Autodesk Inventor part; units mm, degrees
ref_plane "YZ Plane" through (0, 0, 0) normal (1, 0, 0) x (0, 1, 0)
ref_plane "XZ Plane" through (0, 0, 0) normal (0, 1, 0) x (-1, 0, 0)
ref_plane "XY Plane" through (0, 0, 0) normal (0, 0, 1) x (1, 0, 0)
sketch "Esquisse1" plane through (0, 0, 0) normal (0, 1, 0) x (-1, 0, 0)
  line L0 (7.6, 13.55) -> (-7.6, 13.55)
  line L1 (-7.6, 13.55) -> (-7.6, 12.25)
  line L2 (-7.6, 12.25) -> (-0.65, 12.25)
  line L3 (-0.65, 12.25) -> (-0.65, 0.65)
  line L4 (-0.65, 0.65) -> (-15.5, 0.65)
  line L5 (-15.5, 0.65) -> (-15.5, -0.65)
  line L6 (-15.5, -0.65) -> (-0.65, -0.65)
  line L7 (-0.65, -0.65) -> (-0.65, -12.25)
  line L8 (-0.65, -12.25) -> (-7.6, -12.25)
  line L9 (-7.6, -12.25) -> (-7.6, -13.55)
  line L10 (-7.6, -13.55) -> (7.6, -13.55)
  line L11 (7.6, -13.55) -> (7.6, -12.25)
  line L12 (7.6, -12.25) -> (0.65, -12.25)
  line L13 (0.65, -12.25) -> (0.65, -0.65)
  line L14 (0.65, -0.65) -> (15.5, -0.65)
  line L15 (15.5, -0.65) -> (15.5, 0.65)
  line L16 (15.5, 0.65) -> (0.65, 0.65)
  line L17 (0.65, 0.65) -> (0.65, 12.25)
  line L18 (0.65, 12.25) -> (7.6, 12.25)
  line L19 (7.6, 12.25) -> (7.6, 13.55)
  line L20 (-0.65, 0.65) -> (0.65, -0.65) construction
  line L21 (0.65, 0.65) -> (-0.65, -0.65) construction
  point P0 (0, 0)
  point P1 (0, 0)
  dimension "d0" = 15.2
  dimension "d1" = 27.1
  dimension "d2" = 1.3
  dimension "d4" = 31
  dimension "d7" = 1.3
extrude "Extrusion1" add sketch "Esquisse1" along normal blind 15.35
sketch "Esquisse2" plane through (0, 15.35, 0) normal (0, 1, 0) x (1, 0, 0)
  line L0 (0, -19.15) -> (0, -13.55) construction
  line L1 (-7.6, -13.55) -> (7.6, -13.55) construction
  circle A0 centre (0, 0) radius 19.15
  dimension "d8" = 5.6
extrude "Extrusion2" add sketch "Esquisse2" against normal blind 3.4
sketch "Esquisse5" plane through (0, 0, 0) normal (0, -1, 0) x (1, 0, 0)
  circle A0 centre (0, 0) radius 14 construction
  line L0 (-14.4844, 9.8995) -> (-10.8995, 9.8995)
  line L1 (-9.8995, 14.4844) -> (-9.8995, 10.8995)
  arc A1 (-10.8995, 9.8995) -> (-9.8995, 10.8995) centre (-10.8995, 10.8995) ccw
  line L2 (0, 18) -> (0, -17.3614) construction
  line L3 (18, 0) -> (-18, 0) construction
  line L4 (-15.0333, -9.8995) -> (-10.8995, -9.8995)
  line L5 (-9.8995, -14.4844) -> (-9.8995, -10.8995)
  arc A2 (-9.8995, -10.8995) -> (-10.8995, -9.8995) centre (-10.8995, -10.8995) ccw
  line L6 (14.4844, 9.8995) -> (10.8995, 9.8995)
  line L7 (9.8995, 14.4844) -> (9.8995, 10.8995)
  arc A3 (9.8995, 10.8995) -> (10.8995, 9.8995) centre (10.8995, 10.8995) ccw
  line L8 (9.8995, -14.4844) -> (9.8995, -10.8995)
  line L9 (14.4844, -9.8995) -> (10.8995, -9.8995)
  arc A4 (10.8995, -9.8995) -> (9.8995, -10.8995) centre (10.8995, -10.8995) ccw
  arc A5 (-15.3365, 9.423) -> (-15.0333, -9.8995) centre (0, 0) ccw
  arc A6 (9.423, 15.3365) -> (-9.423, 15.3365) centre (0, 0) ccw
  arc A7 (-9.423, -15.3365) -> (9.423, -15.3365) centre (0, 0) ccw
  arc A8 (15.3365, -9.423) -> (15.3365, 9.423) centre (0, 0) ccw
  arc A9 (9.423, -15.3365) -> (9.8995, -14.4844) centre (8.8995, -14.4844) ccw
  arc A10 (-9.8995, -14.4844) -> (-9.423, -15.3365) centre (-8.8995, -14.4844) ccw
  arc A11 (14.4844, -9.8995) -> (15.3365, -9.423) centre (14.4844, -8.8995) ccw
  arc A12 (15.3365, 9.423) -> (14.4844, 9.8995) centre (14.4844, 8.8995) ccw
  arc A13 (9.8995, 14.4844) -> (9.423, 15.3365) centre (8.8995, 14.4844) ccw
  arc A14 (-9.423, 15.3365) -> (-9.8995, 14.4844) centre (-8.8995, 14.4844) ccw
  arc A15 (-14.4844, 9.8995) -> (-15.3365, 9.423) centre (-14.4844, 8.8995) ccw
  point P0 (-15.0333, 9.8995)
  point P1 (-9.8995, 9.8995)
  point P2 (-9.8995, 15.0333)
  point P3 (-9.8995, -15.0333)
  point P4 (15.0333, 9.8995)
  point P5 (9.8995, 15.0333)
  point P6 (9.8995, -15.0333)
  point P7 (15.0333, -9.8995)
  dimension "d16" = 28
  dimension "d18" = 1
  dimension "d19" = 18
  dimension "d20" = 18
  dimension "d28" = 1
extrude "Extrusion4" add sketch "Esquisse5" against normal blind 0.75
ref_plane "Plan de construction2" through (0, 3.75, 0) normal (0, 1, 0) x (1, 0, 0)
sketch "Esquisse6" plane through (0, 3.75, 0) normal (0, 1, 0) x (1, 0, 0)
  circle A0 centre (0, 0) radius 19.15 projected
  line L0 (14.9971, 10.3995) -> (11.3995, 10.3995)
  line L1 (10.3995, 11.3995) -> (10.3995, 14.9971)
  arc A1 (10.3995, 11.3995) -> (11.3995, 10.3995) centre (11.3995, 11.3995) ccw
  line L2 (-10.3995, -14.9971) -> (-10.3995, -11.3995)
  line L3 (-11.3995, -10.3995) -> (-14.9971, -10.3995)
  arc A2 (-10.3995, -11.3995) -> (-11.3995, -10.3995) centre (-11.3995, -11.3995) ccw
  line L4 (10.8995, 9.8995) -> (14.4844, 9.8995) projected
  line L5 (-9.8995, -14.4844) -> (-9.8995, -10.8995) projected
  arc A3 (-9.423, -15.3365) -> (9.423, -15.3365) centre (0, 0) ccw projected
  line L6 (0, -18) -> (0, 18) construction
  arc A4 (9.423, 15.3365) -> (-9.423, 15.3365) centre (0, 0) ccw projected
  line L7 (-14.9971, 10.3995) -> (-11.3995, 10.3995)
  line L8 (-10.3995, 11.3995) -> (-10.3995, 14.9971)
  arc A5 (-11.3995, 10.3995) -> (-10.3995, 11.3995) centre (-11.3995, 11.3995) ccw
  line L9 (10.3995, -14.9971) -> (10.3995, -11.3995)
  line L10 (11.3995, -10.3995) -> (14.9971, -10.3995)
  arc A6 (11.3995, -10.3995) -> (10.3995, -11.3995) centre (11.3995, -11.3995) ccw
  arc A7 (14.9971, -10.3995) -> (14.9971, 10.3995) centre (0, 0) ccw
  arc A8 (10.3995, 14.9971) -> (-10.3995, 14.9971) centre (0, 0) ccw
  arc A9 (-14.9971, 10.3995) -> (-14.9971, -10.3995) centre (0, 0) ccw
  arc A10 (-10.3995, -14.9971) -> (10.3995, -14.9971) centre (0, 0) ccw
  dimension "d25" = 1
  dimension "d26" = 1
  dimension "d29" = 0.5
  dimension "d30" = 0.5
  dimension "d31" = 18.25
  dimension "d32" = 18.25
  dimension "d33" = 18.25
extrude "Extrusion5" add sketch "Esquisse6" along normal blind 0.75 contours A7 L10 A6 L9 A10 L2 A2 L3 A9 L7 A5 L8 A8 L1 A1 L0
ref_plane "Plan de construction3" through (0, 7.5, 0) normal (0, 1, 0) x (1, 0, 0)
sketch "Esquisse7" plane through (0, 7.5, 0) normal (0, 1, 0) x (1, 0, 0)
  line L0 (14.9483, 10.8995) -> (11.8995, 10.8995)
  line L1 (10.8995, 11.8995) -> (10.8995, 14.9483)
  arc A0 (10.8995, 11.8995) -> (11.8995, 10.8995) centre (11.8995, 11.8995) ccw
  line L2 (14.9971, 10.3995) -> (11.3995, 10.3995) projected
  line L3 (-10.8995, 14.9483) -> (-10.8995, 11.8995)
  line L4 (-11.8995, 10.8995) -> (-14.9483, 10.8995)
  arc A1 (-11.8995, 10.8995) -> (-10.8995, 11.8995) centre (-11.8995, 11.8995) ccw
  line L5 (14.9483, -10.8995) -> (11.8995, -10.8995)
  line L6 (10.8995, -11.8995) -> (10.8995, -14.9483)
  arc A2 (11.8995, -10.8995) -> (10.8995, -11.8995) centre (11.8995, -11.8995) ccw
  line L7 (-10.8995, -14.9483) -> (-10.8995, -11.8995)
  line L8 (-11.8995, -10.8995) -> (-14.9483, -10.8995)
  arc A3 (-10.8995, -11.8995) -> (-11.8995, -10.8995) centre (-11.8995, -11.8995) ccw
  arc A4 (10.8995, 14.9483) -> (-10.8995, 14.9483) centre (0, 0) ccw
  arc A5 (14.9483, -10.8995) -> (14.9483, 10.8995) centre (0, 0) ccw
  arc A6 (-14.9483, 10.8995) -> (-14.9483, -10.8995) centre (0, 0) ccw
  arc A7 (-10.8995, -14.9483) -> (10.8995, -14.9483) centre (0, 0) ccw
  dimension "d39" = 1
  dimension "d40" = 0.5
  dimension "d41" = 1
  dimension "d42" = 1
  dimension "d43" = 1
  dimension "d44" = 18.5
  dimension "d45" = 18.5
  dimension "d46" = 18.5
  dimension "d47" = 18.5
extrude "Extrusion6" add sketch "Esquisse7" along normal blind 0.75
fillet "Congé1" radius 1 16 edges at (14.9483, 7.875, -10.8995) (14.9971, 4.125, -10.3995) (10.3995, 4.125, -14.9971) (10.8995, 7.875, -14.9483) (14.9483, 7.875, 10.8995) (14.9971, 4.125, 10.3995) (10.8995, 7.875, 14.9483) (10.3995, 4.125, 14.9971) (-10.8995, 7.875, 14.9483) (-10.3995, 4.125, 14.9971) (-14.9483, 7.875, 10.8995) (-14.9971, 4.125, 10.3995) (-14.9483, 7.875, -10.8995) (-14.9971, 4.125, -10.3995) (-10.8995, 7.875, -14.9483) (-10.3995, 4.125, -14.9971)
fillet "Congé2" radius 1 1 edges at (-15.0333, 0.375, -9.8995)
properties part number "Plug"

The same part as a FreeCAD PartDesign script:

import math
import FreeCAD as App
import Part
import Sketcher
Q = App.Units.Quantity


def edges_at(feature, points):
    """Names of the edges that pass closest to the given points."""
    edges = feature.Shape.Edges
    near = lambda p: min(range(len(edges)), key=lambda i: edges[i].distToShape(Part.Vertex(*p))[0])
    return sorted({f"Edge{near(p) + 1}" for p in points})


def add_polygon(sketch, points):
    """Adds a closed chain of lines whose ends are joined by coincident constraints."""
    first, n = sketch.GeometryCount, len(points)
    for a, b in zip(points, points[1:] + points[:1]):
        sketch.addGeometry(Part.LineSegment(App.Vector(*a, 0), App.Vector(*b, 0)), False)
    for i in range(n):
        sketch.addConstraint(Sketcher.Constraint("Coincident", first + i, 2, first + (i + 1) % n, 1))

doc = App.newDocument("Part")
body = doc.addObject("PartDesign::Body", "Body")

# Sketch on XZ plane
sketch1 = body.newObject("Sketcher::SketchObject", "Sketch")
sketch1.AttachmentSupport = (doc.getObject("XZ_Plane"), [""])
sketch1.MapMode = "FlatFace"
add_polygon(sketch1, [(-7.6, 12.2), (-7.6, 13.6), (7.6, 13.6), (7.6, 12.2), (0.7, 12.2), (0.7, 0.7), (15.5, 0.7), (15.5, -0.7), (0.7, -0.7), (0.7, -12.2), (7.6, -12.2), (7.6, -13.6), (-7.6, -13.6), (-7.6, -12.2), (-0.7, -12.2), (-0.7, -0.7), (-15.5, -0.7), (-15.5, 0.7), (-0.7, 0.7), (-0.7, 12.2)])  # lines 0-19
sketch1.addConstraint([
    Sketcher.Constraint("Vertical", 0),
    Sketcher.Constraint("Horizontal", 1),
    Sketcher.Constraint("Vertical", 2),
    Sketcher.Constraint("Horizontal", 3),
    Sketcher.Constraint("Vertical", 4),
    Sketcher.Constraint("Horizontal", 5),
    Sketcher.Constraint("Vertical", 6),
    Sketcher.Constraint("Horizontal", 7),
    Sketcher.Constraint("Vertical", 8),
    Sketcher.Constraint("Horizontal", 9),
    Sketcher.Constraint("Vertical", 10),
    Sketcher.Constraint("Horizontal", 11),
    Sketcher.Constraint("Vertical", 12),
    Sketcher.Constraint("Horizontal", 13),
    Sketcher.Constraint("Vertical", 14),
    Sketcher.Constraint("Horizontal", 15),
    Sketcher.Constraint("Vertical", 16),
    Sketcher.Constraint("Horizontal", 17),
    Sketcher.Constraint("Vertical", 18),
    Sketcher.Constraint("Horizontal", 19),
    Sketcher.Constraint("Symmetric", 0, 2, 10, 2, -1, 1),
    Sketcher.Constraint("Symmetric", 2, 2, 12, 2, -1, 1),
    Sketcher.Constraint("Symmetric", 4, 2, 14, 2, -1, 1),
    Sketcher.Constraint("Symmetric", 6, 2, 16, 2, -1, 1),
    Sketcher.Constraint("Symmetric", 8, 2, 18, 2, -1, 1),
    Sketcher.Constraint("Symmetric", 9, 2, 12, 2, -2),
    Sketcher.Constraint("Symmetric", 7, 2, 14, 2, -2),
    Sketcher.Constraint("Equal", 2, 6),
    Sketcher.Constraint("DistanceX", 1, 1, 1, 2, Q("15.2 mm")),
    Sketcher.Constraint("DistanceY", 0, 1, 0, 2, Q("1.3 mm")),
    Sketcher.Constraint("DistanceX", 13, 2, 8, 2, Q("1.3 mm")),
    Sketcher.Constraint("DistanceY", 4, 2, 4, 1, Q("11.6 mm")),
    Sketcher.Constraint("DistanceX", 5, 1, 5, 2, Q("14.85 mm")),
])
pad1 = body.newObject("PartDesign::Pad", "Pad")
pad1.Profile = sketch1
pad1.Length = 15.35
pad1.Reversed = True

# Sketch on XZ plane
sketch2 = body.newObject("Sketcher::SketchObject", "Sketch001")
sketch2.AttachmentSupport = (doc.getObject("XZ_Plane"), [""])
sketch2.MapMode = "FlatFace"
sketch2.AttachmentOffset = App.Placement(App.Vector(0, 0, -15.35), App.Rotation())
sketch2.addGeometry(Part.Circle(App.Vector(0, 0, 0), App.Vector(0, 0, 1), 19), False)
sketch2.addConstraint([
    Sketcher.Constraint("Coincident", 0, 3, -1, 1),
    Sketcher.Constraint("Diameter", 0, Q("38.3 mm")),
])
pad2 = body.newObject("PartDesign::Pad", "Pad001")
pad2.Profile = sketch2
pad2.Length = 3.4

# Sketch on XZ plane
sketch3 = body.newObject("Sketcher::SketchObject", "Sketch002")
sketch3.AttachmentSupport = (doc.getObject("XZ_Plane"), [""])
sketch3.MapMode = "FlatFace"
sketch3.addGeometry([
    Part.LineSegment(App.Vector(-10.9, 9.9, 0), App.Vector(-14.5, 9.9, 0)),  # 0
    Part.ArcOfCircle(Part.Circle(App.Vector(-14.5, 8.9, 0), App.Vector(0, 0, 1), 1), math.radians(90), math.radians(148)),  # 1
    Part.ArcOfCircle(Part.Circle(App.Vector(0, 0, 0), App.Vector(0, 0, 1), 18), math.radians(148), math.radians(213)),  # 2
    Part.LineSegment(App.Vector(-15, -9.9, 0), App.Vector(-10.9, -9.9, 0)),  # 3
    Part.ArcOfCircle(Part.Circle(App.Vector(-10.9, -10.9, 0), App.Vector(0, 0, 1), 1), math.radians(0), math.radians(90)),  # 4
    Part.LineSegment(App.Vector(-9.9, -10.9, 0), App.Vector(-9.9, -14.5, 0)),  # 5
    Part.ArcOfCircle(Part.Circle(App.Vector(-8.9, -14.5, 0), App.Vector(0, 0, 1), 1), math.radians(180), math.radians(238)),  # 6
    Part.ArcOfCircle(Part.Circle(App.Vector(0, 0, 0), App.Vector(0, 0, 1), 18), math.radians(-122), math.radians(-58)),  # 7
    Part.ArcOfCircle(Part.Circle(App.Vector(8.9, -14.5, 0), App.Vector(0, 0, 1), 1), math.radians(-58), math.radians(0)),  # 8
    Part.LineSegment(App.Vector(9.9, -14.5, 0), App.Vector(9.9, -10.9, 0)),  # 9
    Part.ArcOfCircle(Part.Circle(App.Vector(10.9, -10.9, 0), App.Vector(0, 0, 1), 1), math.radians(90), math.radians(180)),  # 10
    Part.LineSegment(App.Vector(10.9, -9.9, 0), App.Vector(14.5, -9.9, 0)),  # 11
    Part.ArcOfCircle(Part.Circle(App.Vector(14.5, -8.9, 0), App.Vector(0, 0, 1), 1), math.radians(-90), math.radians(-32)),  # 12
    Part.ArcOfCircle(Part.Circle(App.Vector(0, 0, 0), App.Vector(0, 0, 1), 18), math.radians(-32), math.radians(32)),  # 13
    Part.ArcOfCircle(Part.Circle(App.Vector(14.5, 8.9, 0), App.Vector(0, 0, 1), 1), math.radians(32), math.radians(90)),  # 14
    Part.LineSegment(App.Vector(14.5, 9.9, 0), App.Vector(10.9, 9.9, 0)),  # 15
    Part.ArcOfCircle(Part.Circle(App.Vector(10.9, 10.9, 0), App.Vector(0, 0, 1), 1), math.radians(180), math.radians(270)),  # 16
    Part.LineSegment(App.Vector(9.9, 10.9, 0), App.Vector(9.9, 14.5, 0)),  # 17
    Part.ArcOfCircle(Part.Circle(App.Vector(8.9, 14.5, 0), App.Vector(0, 0, 1), 1), math.radians(0), math.radians(58)),  # 18
    Part.ArcOfCircle(Part.Circle(App.Vector(0, 0, 0), App.Vector(0, 0, 1), 18), math.radians(58), math.radians(122)),  # 19
    Part.ArcOfCircle(Part.Circle(App.Vector(-8.9, 14.5, 0), App.Vector(0, 0, 1), 1), math.radians(122), math.radians(180)),  # 20
    Part.LineSegment(App.Vector(-9.9, 14.5, 0), App.Vector(-9.9, 10.9, 0)),  # 21
    Part.ArcOfCircle(Part.Circle(App.Vector(-10.9, 10.9, 0), App.Vector(0, 0, 1), 1), math.radians(-90), math.radians(0)),  # 22
], False)
sketch3.addConstraint([
    Sketcher.Constraint("Tangent", 0, 2, 1, 1),
    Sketcher.Constraint("Tangent", 1, 2, 2, 1),
    Sketcher.Constraint("Coincident", 2, 2, 3, 1),
    Sketcher.Constraint("Tangent", 3, 2, 4, 2),
    Sketcher.Constraint("Tangent", 4, 1, 5, 1),
    Sketcher.Constraint("Tangent", 5, 2, 6, 1),
    Sketcher.Constraint("Tangent", 6, 2, 7, 1),
    Sketcher.Constraint("Tangent", 7, 2, 8, 1),
    Sketcher.Constraint("Tangent", 8, 2, 9, 1),
    Sketcher.Constraint("Tangent", 9, 2, 10, 2),
    Sketcher.Constraint("Tangent", 10, 1, 11, 1),
    Sketcher.Constraint("Tangent", 11, 2, 12, 1),
    Sketcher.Constraint("Tangent", 12, 2, 13, 1),
    Sketcher.Constraint("Tangent", 13, 2, 14, 1),
    Sketcher.Constraint("Tangent", 14, 2, 15, 1),
    Sketcher.Constraint("Tangent", 15, 2, 16, 2),
    Sketcher.Constraint("Tangent", 16, 1, 17, 1),
    Sketcher.Constraint("Tangent", 17, 2, 18, 1),
    Sketcher.Constraint("Tangent", 18, 2, 19, 1),
    Sketcher.Constraint("Tangent", 19, 2, 20, 1),
    Sketcher.Constraint("Tangent", 20, 2, 21, 1),
    Sketcher.Constraint("Tangent", 21, 2, 22, 2),
    Sketcher.Constraint("Tangent", 22, 1, 0, 1),
    Sketcher.Constraint("Horizontal", 0),
    Sketcher.Constraint("Horizontal", 3),
    Sketcher.Constraint("Vertical", 5),
    Sketcher.Constraint("Vertical", 9),
    Sketcher.Constraint("Horizontal", 11),
    Sketcher.Constraint("Horizontal", 15),
    Sketcher.Constraint("Vertical", 17),
    Sketcher.Constraint("Vertical", 21),
    Sketcher.Constraint("Coincident", 2, 3, -1, 1),
    Sketcher.Constraint("Coincident", 7, 3, -1, 1),
    Sketcher.Constraint("Coincident", 13, 3, -1, 1),
    Sketcher.Constraint("Coincident", 19, 3, -1, 1),
    Sketcher.Constraint("Equal", 1, 4),
    Sketcher.Constraint("Equal", 4, 6),
    Sketcher.Constraint("Equal", 2, 7),
    Sketcher.Constraint("Equal", 6, 8),
    Sketcher.Constraint("Equal", 8, 10),
    Sketcher.Constraint("Equal", 10, 12),
    Sketcher.Constraint("Equal", 7, 13),
    Sketcher.Constraint("Equal", 12, 14),
    Sketcher.Constraint("Equal", 14, 16),
    Sketcher.Constraint("Equal", 16, 18),
    Sketcher.Constraint("Equal", 13, 19),
    Sketcher.Constraint("Equal", 18, 20),
    Sketcher.Constraint("Equal", 20, 22),
    Sketcher.Constraint("Symmetric", 4, 3, 16, 3, -1, 1),
    Sketcher.Constraint("Symmetric", 10, 3, 22, 3, -1, 1),
    Sketcher.Constraint("Symmetric", 4, 3, 10, 3, -2),
    Sketcher.Constraint("Equal", 15, 5),
    Sketcher.Constraint("Radius", 1, Q("1 mm")),
    Sketcher.Constraint("Radius", 2, Q("18 mm")),
    Sketcher.Constraint("DistanceX", 0, 2, 0, 1, Q("3.585 mm")),
])
pad3 = body.newObject("PartDesign::Pad", "Pad002")
pad3.Profile = sketch3
pad3.Length = 0.75
pad3.Reversed = True

# Sketch on XZ plane
sketch4 = body.newObject("Sketcher::SketchObject", "Sketch003")
sketch4.AttachmentSupport = (doc.getObject("XZ_Plane"), [""])
sketch4.MapMode = "FlatFace"
sketch4.AttachmentOffset = App.Placement(App.Vector(0, 0, -3.75), App.Rotation())
sketch4.addGeometry([
    Part.ArcOfCircle(Part.Circle(App.Vector(0, 0, 0), App.Vector(0, 0, 1), 18.3), math.radians(-35), math.radians(35)),  # 0
    Part.LineSegment(App.Vector(15, -10.4, 0), App.Vector(11.4, -10.4, 0)),  # 1
    Part.ArcOfCircle(Part.Circle(App.Vector(11.4, -11.4, 0), App.Vector(0, 0, 1), 1), math.radians(90), math.radians(180)),  # 2
    Part.LineSegment(App.Vector(10.4, -11.4, 0), App.Vector(10.4, -15, 0)),  # 3
    Part.ArcOfCircle(Part.Circle(App.Vector(0, 0, 0), App.Vector(0, 0, 1), 18.3), math.radians(-125), math.radians(-55)),  # 4
    Part.LineSegment(App.Vector(-10.4, -15, 0), App.Vector(-10.4, -11.4, 0)),  # 5
    Part.ArcOfCircle(Part.Circle(App.Vector(-11.4, -11.4, 0), App.Vector(0, 0, 1), 1), math.radians(0), math.radians(90)),  # 6
    Part.LineSegment(App.Vector(-11.4, -10.4, 0), App.Vector(-15, -10.4, 0)),  # 7
    Part.ArcOfCircle(Part.Circle(App.Vector(0, 0, 0), App.Vector(0, 0, 1), 18.3), math.radians(145), math.radians(215)),  # 8
    Part.LineSegment(App.Vector(-15, 10.4, 0), App.Vector(-11.4, 10.4, 0)),  # 9
    Part.ArcOfCircle(Part.Circle(App.Vector(-11.4, 11.4, 0), App.Vector(0, 0, 1), 1), math.radians(-90), math.radians(0)),  # 10
    Part.LineSegment(App.Vector(-10.4, 11.4, 0), App.Vector(-10.4, 15, 0)),  # 11
    Part.ArcOfCircle(Part.Circle(App.Vector(0, 0, 0), App.Vector(0, 0, 1), 18.3), math.radians(55), math.radians(125)),  # 12
    Part.LineSegment(App.Vector(10.4, 15, 0), App.Vector(10.4, 11.4, 0)),  # 13
    Part.ArcOfCircle(Part.Circle(App.Vector(11.4, 11.4, 0), App.Vector(0, 0, 1), 1), math.radians(180), math.radians(270)),  # 14
    Part.LineSegment(App.Vector(11.4, 10.4, 0), App.Vector(15, 10.4, 0)),  # 15
], False)
sketch4.addConstraint([
    Sketcher.Constraint("Coincident", 0, 1, 1, 1),
    Sketcher.Constraint("Tangent", 1, 2, 2, 1),
    Sketcher.Constraint("Tangent", 2, 2, 3, 1),
    Sketcher.Constraint("Coincident", 3, 2, 4, 2),
    Sketcher.Constraint("Coincident", 4, 1, 5, 1),
    Sketcher.Constraint("Tangent", 5, 2, 6, 1),
    Sketcher.Constraint("Tangent", 6, 2, 7, 1),
    Sketcher.Constraint("Coincident", 7, 2, 8, 2),
    Sketcher.Constraint("Coincident", 8, 1, 9, 1),
    Sketcher.Constraint("Tangent", 9, 2, 10, 1),
    Sketcher.Constraint("Tangent", 10, 2, 11, 1),
    Sketcher.Constraint("Coincident", 11, 2, 12, 2),
    Sketcher.Constraint("Coincident", 12, 1, 13, 1),
    Sketcher.Constraint("Tangent", 13, 2, 14, 1),
    Sketcher.Constraint("Tangent", 14, 2, 15, 1),
    Sketcher.Constraint("Coincident", 15, 2, 0, 2),
    Sketcher.Constraint("Horizontal", 1),
    Sketcher.Constraint("Vertical", 3),
    Sketcher.Constraint("Vertical", 5),
    Sketcher.Constraint("Horizontal", 7),
    Sketcher.Constraint("Horizontal", 9),
    Sketcher.Constraint("Vertical", 11),
    Sketcher.Constraint("Vertical", 13),
    Sketcher.Constraint("Horizontal", 15),
    Sketcher.Constraint("Coincident", 0, 3, -1, 1),
    Sketcher.Constraint("Coincident", 4, 3, -1, 1),
    Sketcher.Constraint("Coincident", 8, 3, -1, 1),
    Sketcher.Constraint("Coincident", 12, 3, -1, 1),
    Sketcher.Constraint("Equal", 0, 4),
    Sketcher.Constraint("Equal", 2, 6),
    Sketcher.Constraint("Equal", 4, 8),
    Sketcher.Constraint("Equal", 6, 10),
    Sketcher.Constraint("Equal", 8, 12),
    Sketcher.Constraint("Equal", 10, 14),
    Sketcher.Constraint("Symmetric", 2, 3, 10, 3, -1, 1),
    Sketcher.Constraint("Symmetric", 6, 3, 14, 3, -1, 1),
    Sketcher.Constraint("Symmetric", 2, 3, 6, 3, -2),
    Sketcher.Constraint("Equal", 15, 3),
    Sketcher.Constraint("Radius", 2, Q("1 mm")),
    Sketcher.Constraint("Radius", 0, Q("18.25 mm")),
    Sketcher.Constraint("DistanceX", 1, 2, 1, 1, Q("3.5976 mm")),
])
pad4 = body.newObject("PartDesign::Pad", "Pad003")
pad4.Profile = sketch4
pad4.Length = 0.75
pad4.Reversed = True

# Sketch on XZ plane
sketch5 = body.newObject("Sketcher::SketchObject", "Sketch004")
sketch5.AttachmentSupport = (doc.getObject("XZ_Plane"), [""])
sketch5.MapMode = "FlatFace"
sketch5.AttachmentOffset = App.Placement(App.Vector(0, 0, -7.5), App.Rotation())
sketch5.addGeometry([
    Part.ArcOfCircle(Part.Circle(App.Vector(0, 0, 0), App.Vector(0, 0, 1), 18.5), math.radians(-36), math.radians(36)),  # 0
    Part.LineSegment(App.Vector(14.9, -10.9, 0), App.Vector(11.9, -10.9, 0)),  # 1
    Part.ArcOfCircle(Part.Circle(App.Vector(11.9, -11.9, 0), App.Vector(0, 0, 1), 1), math.radians(90), math.radians(180)),  # 2
    Part.LineSegment(App.Vector(10.9, -11.9, 0), App.Vector(10.9, -14.9, 0)),  # 3
    Part.ArcOfCircle(Part.Circle(App.Vector(0, 0, 0), App.Vector(0, 0, 1), 18.5), math.radians(-126), math.radians(-54)),  # 4
    Part.LineSegment(App.Vector(-10.9, -14.9, 0), App.Vector(-10.9, -11.9, 0)),  # 5
    Part.ArcOfCircle(Part.Circle(App.Vector(-11.9, -11.9, 0), App.Vector(0, 0, 1), 1), math.radians(0), math.radians(90)),  # 6
    Part.LineSegment(App.Vector(-11.9, -10.9, 0), App.Vector(-14.9, -10.9, 0)),  # 7
    Part.ArcOfCircle(Part.Circle(App.Vector(0, 0, 0), App.Vector(0, 0, 1), 18.5), math.radians(144), math.radians(216)),  # 8
    Part.LineSegment(App.Vector(-14.9, 10.9, 0), App.Vector(-11.9, 10.9, 0)),  # 9
    Part.ArcOfCircle(Part.Circle(App.Vector(-11.9, 11.9, 0), App.Vector(0, 0, 1), 1), math.radians(-90), math.radians(0)),  # 10
    Part.LineSegment(App.Vector(-10.9, 11.9, 0), App.Vector(-10.9, 14.9, 0)),  # 11
    Part.ArcOfCircle(Part.Circle(App.Vector(0, 0, 0), App.Vector(0, 0, 1), 18.5), math.radians(54), math.radians(126)),  # 12
    Part.LineSegment(App.Vector(10.9, 14.9, 0), App.Vector(10.9, 11.9, 0)),  # 13
    Part.ArcOfCircle(Part.Circle(App.Vector(11.9, 11.9, 0), App.Vector(0, 0, 1), 1), math.radians(180), math.radians(270)),  # 14
    Part.LineSegment(App.Vector(11.9, 10.9, 0), App.Vector(14.9, 10.9, 0)),  # 15
], False)
sketch5.addConstraint([
    Sketcher.Constraint("Coincident", 0, 1, 1, 1),
    Sketcher.Constraint("Tangent", 1, 2, 2, 1),
    Sketcher.Constraint("Tangent", 2, 2, 3, 1),
    Sketcher.Constraint("Coincident", 3, 2, 4, 2),
    Sketcher.Constraint("Coincident", 4, 1, 5, 1),
    Sketcher.Constraint("Tangent", 5, 2, 6, 1),
    Sketcher.Constraint("Tangent", 6, 2, 7, 1),
    Sketcher.Constraint("Coincident", 7, 2, 8, 2),
    Sketcher.Constraint("Coincident", 8, 1, 9, 1),
    Sketcher.Constraint("Tangent", 9, 2, 10, 1),
    Sketcher.Constraint("Tangent", 10, 2, 11, 1),
    Sketcher.Constraint("Coincident", 11, 2, 12, 2),
    Sketcher.Constraint("Coincident", 12, 1, 13, 1),
    Sketcher.Constraint("Tangent", 13, 2, 14, 1),
    Sketcher.Constraint("Tangent", 14, 2, 15, 1),
    Sketcher.Constraint("Coincident", 15, 2, 0, 2),
    Sketcher.Constraint("Horizontal", 1),
    Sketcher.Constraint("Vertical", 3),
    Sketcher.Constraint("Vertical", 5),
    Sketcher.Constraint("Horizontal", 7),
    Sketcher.Constraint("Horizontal", 9),
    Sketcher.Constraint("Vertical", 11),
    Sketcher.Constraint("Vertical", 13),
    Sketcher.Constraint("Horizontal", 15),
    Sketcher.Constraint("Coincident", 0, 3, -1, 1),
    Sketcher.Constraint("Coincident", 4, 3, -1, 1),
    Sketcher.Constraint("Coincident", 8, 3, -1, 1),
    Sketcher.Constraint("Coincident", 12, 3, -1, 1),
    Sketcher.Constraint("Equal", 0, 4),
    Sketcher.Constraint("Equal", 2, 6),
    Sketcher.Constraint("Equal", 4, 8),
    Sketcher.Constraint("Equal", 6, 10),
    Sketcher.Constraint("Equal", 8, 12),
    Sketcher.Constraint("Equal", 10, 14),
    Sketcher.Constraint("Symmetric", 2, 3, 10, 3, -1, 1),
    Sketcher.Constraint("Symmetric", 6, 3, 14, 3, -1, 1),
    Sketcher.Constraint("Symmetric", 2, 3, 6, 3, -2),
    Sketcher.Constraint("Equal", 15, 3),
    Sketcher.Constraint("Radius", 2, Q("1 mm")),
    Sketcher.Constraint("Radius", 0, Q("18.5 mm")),
    Sketcher.Constraint("DistanceX", 1, 2, 1, 1, Q("3.0488 mm")),
])
pad5 = body.newObject("PartDesign::Pad", "Pad004")
pad5.Profile = sketch5
pad5.Length = 0.75
pad5.Reversed = True
doc.recompute()

fillet = body.newObject("PartDesign::Fillet", "Fillet")
fillet.Base = (pad5, edges_at(pad5, [
    (14.948, 7.875, -10.899),
    (14.997, 4.125, -10.399),
    (10.399, 4.125, -14.997),
    (10.899, 7.875, -14.948),
    (14.948, 7.875, 10.899),
    (14.997, 4.125, 10.399),
    (10.899, 7.875, 14.948),
    (10.399, 4.125, 14.997),
    (-10.899, 7.875, 14.948),
    (-10.399, 4.125, 14.997),
    (-14.948, 7.875, 10.899),
    (-14.997, 4.125, 10.399),
    (-14.948, 7.875, -10.899),
    (-14.997, 4.125, -10.399),
    (-10.899, 7.875, -14.948),
    (-10.399, 4.125, -14.997),
]))
fillet.Radius = 1
doc.recompute()

fillet2 = body.newObject("PartDesign::Fillet", "Fillet001")
fillet2.Base = (fillet, edges_at(fillet, [(-15.033, 0.375, -9.899)]))
fillet2.Radius = 1

doc.recompute()
